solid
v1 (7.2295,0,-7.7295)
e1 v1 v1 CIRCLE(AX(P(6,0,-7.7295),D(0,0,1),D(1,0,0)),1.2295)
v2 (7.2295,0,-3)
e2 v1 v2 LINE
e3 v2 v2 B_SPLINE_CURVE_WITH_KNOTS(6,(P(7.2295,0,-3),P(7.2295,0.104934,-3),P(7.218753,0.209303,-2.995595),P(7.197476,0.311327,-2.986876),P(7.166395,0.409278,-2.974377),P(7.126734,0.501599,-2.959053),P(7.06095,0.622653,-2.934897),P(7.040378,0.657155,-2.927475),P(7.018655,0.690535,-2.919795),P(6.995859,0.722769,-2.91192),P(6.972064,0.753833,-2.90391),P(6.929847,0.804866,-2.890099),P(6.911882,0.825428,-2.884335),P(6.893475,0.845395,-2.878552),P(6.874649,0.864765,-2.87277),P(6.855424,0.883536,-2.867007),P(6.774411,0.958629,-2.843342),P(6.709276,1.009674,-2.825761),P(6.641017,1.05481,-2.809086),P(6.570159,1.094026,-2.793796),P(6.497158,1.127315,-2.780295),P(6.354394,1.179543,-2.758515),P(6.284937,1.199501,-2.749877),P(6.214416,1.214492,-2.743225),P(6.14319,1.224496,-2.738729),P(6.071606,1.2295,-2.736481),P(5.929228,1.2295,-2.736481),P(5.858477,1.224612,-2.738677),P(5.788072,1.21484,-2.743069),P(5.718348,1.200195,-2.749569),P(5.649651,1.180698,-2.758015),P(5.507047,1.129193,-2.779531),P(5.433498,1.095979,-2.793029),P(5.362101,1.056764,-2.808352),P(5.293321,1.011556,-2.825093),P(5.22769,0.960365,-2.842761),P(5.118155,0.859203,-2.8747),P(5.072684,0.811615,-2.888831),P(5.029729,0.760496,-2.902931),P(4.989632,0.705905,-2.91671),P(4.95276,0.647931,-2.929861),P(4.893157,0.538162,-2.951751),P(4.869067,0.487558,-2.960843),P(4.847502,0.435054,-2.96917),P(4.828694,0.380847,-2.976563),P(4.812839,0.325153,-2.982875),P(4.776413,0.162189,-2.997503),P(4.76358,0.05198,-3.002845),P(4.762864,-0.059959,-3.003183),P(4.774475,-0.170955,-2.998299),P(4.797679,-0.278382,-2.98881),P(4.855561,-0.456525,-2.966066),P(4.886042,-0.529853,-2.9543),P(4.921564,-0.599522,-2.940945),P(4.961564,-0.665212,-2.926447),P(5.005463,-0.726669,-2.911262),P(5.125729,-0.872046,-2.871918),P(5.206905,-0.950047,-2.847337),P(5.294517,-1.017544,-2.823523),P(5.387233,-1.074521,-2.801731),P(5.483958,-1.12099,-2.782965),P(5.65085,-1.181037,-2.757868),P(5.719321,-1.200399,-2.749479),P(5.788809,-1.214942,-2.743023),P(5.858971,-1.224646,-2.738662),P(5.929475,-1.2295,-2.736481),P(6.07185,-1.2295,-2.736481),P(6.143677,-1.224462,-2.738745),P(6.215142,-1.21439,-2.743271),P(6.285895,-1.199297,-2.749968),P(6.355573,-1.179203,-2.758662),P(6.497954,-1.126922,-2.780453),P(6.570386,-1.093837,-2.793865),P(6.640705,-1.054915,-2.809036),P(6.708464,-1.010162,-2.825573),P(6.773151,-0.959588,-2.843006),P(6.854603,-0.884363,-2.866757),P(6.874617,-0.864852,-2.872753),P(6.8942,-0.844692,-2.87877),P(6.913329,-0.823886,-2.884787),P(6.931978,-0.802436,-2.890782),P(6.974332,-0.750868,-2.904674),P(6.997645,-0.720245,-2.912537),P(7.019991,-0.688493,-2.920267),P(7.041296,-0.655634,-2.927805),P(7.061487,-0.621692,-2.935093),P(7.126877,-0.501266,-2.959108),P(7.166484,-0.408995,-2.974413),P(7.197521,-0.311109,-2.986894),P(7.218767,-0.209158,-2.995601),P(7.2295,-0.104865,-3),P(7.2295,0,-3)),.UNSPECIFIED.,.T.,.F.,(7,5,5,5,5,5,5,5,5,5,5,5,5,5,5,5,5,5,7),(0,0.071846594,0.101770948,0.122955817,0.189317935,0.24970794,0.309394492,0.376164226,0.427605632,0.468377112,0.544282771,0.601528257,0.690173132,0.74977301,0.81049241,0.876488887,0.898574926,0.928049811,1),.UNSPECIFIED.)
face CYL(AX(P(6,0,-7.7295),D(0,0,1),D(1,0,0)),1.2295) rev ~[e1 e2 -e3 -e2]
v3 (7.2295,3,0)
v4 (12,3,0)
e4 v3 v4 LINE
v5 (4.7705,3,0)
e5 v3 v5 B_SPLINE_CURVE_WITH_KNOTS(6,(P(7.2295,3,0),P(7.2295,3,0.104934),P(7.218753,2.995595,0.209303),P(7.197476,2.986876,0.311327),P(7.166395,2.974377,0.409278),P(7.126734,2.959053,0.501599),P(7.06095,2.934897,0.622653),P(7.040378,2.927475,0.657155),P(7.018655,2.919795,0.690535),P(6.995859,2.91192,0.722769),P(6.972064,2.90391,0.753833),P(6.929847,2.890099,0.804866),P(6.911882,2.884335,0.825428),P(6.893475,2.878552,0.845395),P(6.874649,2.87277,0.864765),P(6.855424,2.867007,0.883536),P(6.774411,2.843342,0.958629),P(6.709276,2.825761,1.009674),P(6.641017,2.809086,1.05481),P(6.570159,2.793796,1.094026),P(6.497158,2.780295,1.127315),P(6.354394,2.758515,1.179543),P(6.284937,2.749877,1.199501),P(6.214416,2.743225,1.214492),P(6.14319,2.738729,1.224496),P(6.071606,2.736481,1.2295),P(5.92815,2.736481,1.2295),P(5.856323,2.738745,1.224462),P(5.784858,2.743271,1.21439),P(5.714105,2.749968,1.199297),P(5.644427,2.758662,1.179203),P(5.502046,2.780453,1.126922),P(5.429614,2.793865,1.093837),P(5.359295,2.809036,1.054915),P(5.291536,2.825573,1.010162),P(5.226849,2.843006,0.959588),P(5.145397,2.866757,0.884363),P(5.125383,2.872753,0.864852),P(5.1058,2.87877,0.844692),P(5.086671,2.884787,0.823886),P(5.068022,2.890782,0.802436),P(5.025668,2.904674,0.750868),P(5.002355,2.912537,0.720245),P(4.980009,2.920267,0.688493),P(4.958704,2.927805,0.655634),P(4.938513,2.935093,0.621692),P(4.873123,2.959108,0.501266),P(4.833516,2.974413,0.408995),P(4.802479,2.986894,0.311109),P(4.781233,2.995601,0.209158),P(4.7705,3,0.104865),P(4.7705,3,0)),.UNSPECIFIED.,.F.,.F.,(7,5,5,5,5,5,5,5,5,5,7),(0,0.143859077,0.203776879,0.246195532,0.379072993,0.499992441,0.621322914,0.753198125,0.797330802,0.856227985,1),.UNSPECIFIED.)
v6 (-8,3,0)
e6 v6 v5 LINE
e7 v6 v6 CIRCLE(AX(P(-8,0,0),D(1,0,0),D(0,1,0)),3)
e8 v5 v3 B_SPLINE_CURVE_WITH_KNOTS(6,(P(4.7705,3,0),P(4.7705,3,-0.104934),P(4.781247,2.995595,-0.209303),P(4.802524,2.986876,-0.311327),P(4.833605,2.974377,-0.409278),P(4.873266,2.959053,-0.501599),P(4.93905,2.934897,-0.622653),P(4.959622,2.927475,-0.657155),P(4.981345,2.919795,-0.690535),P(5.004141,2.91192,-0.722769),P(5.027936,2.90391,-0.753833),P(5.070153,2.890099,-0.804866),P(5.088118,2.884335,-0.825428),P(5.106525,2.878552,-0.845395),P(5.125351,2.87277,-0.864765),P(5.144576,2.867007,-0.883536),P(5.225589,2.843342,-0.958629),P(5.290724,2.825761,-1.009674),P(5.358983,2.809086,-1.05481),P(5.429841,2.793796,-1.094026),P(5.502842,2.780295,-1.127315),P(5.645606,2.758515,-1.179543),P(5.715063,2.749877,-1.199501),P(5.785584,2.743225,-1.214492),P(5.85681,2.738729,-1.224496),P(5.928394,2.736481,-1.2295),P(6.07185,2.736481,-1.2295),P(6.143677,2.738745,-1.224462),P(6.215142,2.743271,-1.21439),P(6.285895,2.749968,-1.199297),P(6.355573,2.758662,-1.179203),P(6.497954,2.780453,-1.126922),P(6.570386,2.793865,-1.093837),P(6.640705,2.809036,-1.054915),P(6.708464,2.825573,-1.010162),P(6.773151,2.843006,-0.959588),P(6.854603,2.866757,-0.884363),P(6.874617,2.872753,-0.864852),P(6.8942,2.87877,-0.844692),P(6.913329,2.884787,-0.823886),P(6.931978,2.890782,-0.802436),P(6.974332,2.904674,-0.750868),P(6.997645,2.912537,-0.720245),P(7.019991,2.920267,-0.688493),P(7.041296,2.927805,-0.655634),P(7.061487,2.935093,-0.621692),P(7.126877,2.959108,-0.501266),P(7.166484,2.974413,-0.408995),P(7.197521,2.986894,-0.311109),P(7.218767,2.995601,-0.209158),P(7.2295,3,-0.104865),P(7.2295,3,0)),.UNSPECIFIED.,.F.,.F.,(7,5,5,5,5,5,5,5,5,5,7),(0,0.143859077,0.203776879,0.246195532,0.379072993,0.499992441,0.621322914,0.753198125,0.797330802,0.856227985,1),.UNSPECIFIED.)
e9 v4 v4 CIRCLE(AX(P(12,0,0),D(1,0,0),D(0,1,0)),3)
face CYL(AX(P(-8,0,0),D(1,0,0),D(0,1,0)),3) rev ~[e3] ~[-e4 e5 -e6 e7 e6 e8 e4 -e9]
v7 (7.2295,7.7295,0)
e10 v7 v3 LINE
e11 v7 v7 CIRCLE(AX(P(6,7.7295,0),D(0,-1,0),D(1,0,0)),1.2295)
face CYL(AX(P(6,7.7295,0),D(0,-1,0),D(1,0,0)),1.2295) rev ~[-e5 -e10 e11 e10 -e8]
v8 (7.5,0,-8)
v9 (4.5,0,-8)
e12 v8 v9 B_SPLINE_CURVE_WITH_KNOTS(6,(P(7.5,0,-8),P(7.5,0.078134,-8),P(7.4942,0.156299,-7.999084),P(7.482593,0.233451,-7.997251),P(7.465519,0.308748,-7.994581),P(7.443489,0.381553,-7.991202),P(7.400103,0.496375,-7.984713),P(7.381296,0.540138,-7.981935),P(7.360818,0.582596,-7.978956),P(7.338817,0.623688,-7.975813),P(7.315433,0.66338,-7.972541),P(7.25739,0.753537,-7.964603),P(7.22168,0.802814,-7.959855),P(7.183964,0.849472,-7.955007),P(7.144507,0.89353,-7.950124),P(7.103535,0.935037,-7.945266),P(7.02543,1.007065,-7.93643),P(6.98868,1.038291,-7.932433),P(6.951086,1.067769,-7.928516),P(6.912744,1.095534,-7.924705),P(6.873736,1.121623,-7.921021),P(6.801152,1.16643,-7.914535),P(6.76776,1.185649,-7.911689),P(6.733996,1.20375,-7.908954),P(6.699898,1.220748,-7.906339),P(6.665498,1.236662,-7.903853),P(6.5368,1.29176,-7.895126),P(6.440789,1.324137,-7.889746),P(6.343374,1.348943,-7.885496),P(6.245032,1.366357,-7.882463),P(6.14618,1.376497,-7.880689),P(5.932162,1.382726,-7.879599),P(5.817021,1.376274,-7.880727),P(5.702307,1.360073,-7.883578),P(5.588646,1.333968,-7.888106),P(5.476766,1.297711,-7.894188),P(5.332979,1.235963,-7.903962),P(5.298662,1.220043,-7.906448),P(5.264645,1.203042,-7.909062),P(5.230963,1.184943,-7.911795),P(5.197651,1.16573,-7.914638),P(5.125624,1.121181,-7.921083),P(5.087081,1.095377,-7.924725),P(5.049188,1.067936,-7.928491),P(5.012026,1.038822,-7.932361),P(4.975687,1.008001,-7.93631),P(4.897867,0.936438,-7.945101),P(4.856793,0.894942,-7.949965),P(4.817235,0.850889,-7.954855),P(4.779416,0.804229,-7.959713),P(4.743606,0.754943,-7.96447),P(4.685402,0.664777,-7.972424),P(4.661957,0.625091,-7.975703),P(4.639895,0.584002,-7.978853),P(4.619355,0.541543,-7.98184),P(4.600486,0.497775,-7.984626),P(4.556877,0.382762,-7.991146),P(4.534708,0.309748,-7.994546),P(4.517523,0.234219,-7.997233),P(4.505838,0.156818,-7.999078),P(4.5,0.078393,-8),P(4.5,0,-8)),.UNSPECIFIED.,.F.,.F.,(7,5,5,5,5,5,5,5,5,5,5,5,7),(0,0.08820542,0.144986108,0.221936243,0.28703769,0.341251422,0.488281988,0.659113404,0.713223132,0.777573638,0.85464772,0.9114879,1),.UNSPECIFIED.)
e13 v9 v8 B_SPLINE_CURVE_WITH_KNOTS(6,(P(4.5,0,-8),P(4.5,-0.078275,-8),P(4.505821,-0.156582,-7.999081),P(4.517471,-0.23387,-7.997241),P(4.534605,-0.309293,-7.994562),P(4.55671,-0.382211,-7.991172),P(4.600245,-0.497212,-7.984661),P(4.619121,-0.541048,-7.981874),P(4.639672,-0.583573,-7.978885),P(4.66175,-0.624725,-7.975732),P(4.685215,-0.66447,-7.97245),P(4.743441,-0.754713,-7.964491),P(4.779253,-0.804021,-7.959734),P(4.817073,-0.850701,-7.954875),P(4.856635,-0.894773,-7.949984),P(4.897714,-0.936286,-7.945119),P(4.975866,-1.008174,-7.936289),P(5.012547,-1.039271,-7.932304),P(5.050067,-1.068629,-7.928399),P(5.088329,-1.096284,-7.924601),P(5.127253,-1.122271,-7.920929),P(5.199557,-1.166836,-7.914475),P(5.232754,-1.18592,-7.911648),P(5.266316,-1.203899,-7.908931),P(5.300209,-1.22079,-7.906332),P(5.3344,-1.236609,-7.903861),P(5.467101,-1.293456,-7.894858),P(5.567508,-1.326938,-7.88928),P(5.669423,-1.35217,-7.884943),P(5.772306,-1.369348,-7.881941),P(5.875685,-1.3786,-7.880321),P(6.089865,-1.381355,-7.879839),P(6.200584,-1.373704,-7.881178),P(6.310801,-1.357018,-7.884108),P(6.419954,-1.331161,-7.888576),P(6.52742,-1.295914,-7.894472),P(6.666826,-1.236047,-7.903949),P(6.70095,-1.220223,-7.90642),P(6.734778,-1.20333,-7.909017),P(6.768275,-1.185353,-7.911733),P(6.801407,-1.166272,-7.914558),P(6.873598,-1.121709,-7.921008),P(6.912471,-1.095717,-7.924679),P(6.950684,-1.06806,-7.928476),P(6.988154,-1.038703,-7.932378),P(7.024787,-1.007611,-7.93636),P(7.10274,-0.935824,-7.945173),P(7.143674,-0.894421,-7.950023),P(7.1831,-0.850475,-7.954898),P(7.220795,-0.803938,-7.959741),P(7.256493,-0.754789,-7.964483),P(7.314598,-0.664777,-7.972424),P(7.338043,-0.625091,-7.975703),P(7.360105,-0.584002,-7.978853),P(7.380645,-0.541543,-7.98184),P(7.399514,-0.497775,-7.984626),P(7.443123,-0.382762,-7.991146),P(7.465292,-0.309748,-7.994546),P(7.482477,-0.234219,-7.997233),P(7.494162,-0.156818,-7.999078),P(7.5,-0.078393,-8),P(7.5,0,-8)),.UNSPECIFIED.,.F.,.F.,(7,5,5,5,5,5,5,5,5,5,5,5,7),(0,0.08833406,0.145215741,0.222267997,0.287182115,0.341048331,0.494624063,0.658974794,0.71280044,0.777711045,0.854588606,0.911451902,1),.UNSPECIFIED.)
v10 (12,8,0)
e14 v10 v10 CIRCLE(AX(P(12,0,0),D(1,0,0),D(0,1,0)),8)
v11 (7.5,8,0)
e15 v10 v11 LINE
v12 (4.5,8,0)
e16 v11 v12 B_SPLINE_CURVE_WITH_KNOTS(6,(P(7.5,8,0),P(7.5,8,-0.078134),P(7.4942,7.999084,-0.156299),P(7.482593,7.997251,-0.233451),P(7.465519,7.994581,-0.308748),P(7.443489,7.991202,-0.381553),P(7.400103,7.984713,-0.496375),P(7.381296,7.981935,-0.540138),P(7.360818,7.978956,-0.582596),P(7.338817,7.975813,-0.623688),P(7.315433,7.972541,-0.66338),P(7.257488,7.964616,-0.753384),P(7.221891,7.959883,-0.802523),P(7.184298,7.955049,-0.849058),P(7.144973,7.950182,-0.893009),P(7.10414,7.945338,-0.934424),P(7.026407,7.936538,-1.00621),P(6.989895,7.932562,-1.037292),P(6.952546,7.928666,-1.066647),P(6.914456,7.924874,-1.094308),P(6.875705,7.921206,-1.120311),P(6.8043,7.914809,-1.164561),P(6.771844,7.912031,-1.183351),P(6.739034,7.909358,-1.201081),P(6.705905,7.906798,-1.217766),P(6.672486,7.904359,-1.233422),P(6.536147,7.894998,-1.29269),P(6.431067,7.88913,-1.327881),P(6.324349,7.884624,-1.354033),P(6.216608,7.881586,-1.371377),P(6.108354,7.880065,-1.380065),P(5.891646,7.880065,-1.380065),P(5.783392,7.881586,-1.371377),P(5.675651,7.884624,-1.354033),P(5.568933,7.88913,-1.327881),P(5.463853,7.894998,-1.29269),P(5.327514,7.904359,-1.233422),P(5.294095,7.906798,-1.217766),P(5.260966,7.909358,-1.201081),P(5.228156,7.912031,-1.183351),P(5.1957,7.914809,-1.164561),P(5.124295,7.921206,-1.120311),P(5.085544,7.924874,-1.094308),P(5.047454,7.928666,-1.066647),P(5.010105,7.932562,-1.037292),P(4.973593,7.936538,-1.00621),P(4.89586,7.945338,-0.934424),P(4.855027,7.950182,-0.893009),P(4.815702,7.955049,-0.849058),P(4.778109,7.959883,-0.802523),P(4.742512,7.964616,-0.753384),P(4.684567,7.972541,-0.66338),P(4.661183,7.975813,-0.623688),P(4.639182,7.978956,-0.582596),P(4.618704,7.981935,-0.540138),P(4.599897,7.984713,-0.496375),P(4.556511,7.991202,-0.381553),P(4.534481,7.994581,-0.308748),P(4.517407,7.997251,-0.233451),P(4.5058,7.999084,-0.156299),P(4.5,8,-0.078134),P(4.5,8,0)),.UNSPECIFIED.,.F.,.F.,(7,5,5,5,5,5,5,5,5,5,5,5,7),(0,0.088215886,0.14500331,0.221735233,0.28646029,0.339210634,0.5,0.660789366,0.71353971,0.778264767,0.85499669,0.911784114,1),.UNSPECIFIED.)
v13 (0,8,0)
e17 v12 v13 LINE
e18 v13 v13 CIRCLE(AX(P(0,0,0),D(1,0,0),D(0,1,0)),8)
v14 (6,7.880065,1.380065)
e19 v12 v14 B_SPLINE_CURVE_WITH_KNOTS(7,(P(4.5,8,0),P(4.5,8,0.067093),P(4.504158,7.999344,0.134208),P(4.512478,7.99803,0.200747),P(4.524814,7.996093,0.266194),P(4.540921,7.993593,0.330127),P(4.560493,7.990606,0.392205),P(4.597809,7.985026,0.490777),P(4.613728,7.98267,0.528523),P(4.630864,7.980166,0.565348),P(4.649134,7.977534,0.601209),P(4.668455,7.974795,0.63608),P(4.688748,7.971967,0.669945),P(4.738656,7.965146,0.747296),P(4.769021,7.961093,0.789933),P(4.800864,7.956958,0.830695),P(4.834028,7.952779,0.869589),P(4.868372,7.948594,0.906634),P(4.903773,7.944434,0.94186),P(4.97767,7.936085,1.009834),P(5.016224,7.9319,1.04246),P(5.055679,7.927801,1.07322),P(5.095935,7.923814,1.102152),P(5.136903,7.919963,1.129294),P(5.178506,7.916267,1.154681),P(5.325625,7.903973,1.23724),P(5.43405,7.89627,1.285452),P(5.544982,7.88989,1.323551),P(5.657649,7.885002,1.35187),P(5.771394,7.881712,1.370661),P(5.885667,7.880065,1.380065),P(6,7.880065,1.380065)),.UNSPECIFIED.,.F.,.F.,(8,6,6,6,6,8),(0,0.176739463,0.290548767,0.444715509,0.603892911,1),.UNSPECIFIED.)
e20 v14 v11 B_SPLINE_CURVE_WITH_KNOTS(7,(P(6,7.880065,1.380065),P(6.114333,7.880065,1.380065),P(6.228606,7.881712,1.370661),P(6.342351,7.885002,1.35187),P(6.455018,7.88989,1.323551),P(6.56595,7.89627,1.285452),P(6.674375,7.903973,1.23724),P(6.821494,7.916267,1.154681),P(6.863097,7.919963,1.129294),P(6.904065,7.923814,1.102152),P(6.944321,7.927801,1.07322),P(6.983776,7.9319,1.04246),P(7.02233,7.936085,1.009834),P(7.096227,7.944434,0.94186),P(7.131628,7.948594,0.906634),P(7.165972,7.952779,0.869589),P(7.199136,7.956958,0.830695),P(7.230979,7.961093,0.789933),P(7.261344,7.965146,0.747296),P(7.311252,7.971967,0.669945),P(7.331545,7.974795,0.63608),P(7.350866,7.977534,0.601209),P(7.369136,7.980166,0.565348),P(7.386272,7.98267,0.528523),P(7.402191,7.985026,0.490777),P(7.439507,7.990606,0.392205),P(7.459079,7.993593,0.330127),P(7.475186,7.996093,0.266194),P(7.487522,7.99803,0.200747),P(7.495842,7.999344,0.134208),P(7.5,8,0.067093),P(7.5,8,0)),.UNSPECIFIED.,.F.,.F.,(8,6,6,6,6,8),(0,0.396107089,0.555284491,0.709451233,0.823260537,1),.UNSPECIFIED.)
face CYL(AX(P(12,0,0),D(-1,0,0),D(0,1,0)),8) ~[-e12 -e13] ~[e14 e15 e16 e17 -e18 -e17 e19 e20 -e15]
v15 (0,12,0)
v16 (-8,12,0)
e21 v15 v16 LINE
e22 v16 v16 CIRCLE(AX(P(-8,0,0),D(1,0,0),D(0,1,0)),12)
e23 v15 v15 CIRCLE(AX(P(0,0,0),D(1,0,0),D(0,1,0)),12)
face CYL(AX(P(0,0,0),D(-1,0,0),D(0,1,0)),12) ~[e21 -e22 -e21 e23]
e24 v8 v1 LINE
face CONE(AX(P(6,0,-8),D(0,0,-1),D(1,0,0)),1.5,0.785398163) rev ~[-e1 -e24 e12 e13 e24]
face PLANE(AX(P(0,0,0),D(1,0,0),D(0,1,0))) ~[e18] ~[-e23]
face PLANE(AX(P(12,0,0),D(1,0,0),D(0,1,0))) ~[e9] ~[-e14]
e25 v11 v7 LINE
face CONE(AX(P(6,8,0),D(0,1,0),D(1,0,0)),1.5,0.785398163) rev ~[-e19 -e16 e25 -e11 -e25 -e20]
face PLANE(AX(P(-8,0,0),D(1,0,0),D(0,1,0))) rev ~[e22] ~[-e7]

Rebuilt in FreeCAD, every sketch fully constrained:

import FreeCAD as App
import Part
import Sketcher
Q = App.Units.Quantity


def add_polygon(sketch, points):
    """Adds a closed chain of lines whose ends are joined by coincident constraints."""
    first, n = sketch.GeometryCount, len(points)
    for a, b in zip(points, points[1:] + points[:1]):
        sketch.addGeometry(Part.LineSegment(App.Vector(*a, 0), App.Vector(*b, 0)), False)
    for i in range(n):
        sketch.addConstraint(Sketcher.Constraint("Coincident", first + i, 2, first + (i + 1) % n, 1))

doc = App.newDocument("Part")
body = doc.addObject("PartDesign::Body", "Body")

# Sketch on XY plane
sketch1 = doc.addObject("Sketcher::SketchObject", "Sketch")
body.addObject(sketch1)
sketch1.AttachmentSupport = (doc.XY_Plane, [""])
sketch1.MapMode = "FlatFace"
add_polygon(sketch1, [(0, 12), (-8, 12), (-8, 3), (12, 3), (12, 8), (0, 8)])  # lines 0-5
sketch1.addConstraint(Sketcher.Constraint("Horizontal", 0))
sketch1.addConstraint(Sketcher.Constraint("Vertical", 1))
sketch1.addConstraint(Sketcher.Constraint("Horizontal", 2))
sketch1.addConstraint(Sketcher.Constraint("Vertical", 3))
sketch1.addConstraint(Sketcher.Constraint("Horizontal", 4))
sketch1.addConstraint(Sketcher.Constraint("Vertical", 5))
sketch1.addConstraint(Sketcher.Constraint("PointOnObject", 4, 2, -2))
sketch1.addConstraint(Sketcher.Constraint("DistanceX", 0, 2, 0, 1, 8.0))
sketch1.addConstraint(Sketcher.Constraint("DistanceX", 2, 1, 2, 2, 20.0))
sketch1.addConstraint(Sketcher.Constraint("DistanceY", 1, 2, 1, 1, 9.0))
sketch1.addConstraint(Sketcher.Constraint("DistanceY", 3, 1, 3, 2, 5.0))
sketch1.addConstraint(Sketcher.Constraint("DistanceY", -1, 1, 0, 2, 12.0))
revolution = doc.addObject("PartDesign::Revolution", "Revolution")
body.addObject(revolution)
revolution.Profile = sketch1
revolution.ReferenceAxis = (sketch1, ["H_Axis"])
revolution.Angle = 360

# Sketch on XY plane
sketch2 = doc.addObject("Sketcher::SketchObject", "Sketch001")
body.addObject(sketch2)
sketch2.AttachmentSupport = (doc.XY_Plane, [""])
sketch2.MapMode = "FlatFace"
add_polygon(sketch2, [(6, 8), (6, 0), (7.2295, 0), (7.2295, 7.7295), (7.5, 8)])  # lines 0-4
sketch2.addGeometry(Part.LineSegment(App.Vector(6, 8, 0), App.Vector(6, 0, 0)), True)  # axis
sketch2.addConstraint(Sketcher.Constraint("Vertical", 0))
sketch2.addConstraint(Sketcher.Constraint("Horizontal", 1))
sketch2.addConstraint(Sketcher.Constraint("Vertical", 2))
sketch2.addConstraint(Sketcher.Constraint("Horizontal", 4))
sketch2.addConstraint(Sketcher.Constraint("Vertical", 5))
sketch2.addConstraint(Sketcher.Constraint("Coincident", 5, 1, 4, 2))
sketch2.addConstraint(Sketcher.Constraint("PointOnObject", 0, 2, -1))
sketch2.addConstraint(Sketcher.Constraint("PointOnObject", 5, 2, -1))
sketch2.addConstraint(Sketcher.Constraint("DistanceY", 0, 2, 0, 1, 8.0))
sketch2.addConstraint(Sketcher.Constraint("Angle", 3, Q("45 deg")))
sketch2.addConstraint(Sketcher.Constraint("DistanceX", 4, 2, 4, 1, 1.5))
sketch2.addConstraint(Sketcher.Constraint("DistanceX", -1, 1, 0, 2, 6.0))
sketch2.addConstraint(Sketcher.Constraint("DistanceX", 1, 1, 1, 2, 1.2295))
groove = doc.addObject("PartDesign::Groove", "Groove")
body.addObject(groove)
groove.Profile = sketch2
groove.ReferenceAxis = (sketch2, ["Axis0"])
groove.Angle = 360

# Sketch on XZ plane
sketch3 = doc.addObject("Sketcher::SketchObject", "Sketch002")
body.addObject(sketch3)
sketch3.AttachmentSupport = (doc.XZ_Plane, [""])
sketch3.MapMode = "FlatFace"
add_polygon(sketch3, [(6, -8), (6, 0), (7.2295, 0), (7.2295, -7.7295), (7.5, -8)])  # lines 0-4
sketch3.addGeometry(Part.LineSegment(App.Vector(6, -8, 0), App.Vector(6, 0, 0)), True)  # axis
sketch3.addConstraint(Sketcher.Constraint("Vertical", 0))
sketch3.addConstraint(Sketcher.Constraint("Horizontal", 1))
sketch3.addConstraint(Sketcher.Constraint("Vertical", 2))
sketch3.addConstraint(Sketcher.Constraint("Horizontal", 4))
sketch3.addConstraint(Sketcher.Constraint("Vertical", 5))
sketch3.addConstraint(Sketcher.Constraint("Coincident", 5, 1, 4, 2))
sketch3.addConstraint(Sketcher.Constraint("PointOnObject", 0, 2, -1))
sketch3.addConstraint(Sketcher.Constraint("PointOnObject", 5, 2, -1))
sketch3.addConstraint(Sketcher.Constraint("DistanceY", 0, 1, 0, 2, 8.0))
sketch3.addConstraint(Sketcher.Constraint("Angle", 3, Q("-45 deg")))
sketch3.addConstraint(Sketcher.Constraint("DistanceX", 4, 2, 4, 1, 1.5))
sketch3.addConstraint(Sketcher.Constraint("DistanceX", -1, 1, 0, 2, 6.0))
sketch3.addConstraint(Sketcher.Constraint("DistanceX", 1, 1, 1, 2, 1.2295))
groove2 = doc.addObject("PartDesign::Groove", "Groove001")
body.addObject(groove2)
groove2.Profile = sketch3
groove2.ReferenceAxis = (sketch3, ["Axis0"])
groove2.Angle = 360

doc.recompute()
